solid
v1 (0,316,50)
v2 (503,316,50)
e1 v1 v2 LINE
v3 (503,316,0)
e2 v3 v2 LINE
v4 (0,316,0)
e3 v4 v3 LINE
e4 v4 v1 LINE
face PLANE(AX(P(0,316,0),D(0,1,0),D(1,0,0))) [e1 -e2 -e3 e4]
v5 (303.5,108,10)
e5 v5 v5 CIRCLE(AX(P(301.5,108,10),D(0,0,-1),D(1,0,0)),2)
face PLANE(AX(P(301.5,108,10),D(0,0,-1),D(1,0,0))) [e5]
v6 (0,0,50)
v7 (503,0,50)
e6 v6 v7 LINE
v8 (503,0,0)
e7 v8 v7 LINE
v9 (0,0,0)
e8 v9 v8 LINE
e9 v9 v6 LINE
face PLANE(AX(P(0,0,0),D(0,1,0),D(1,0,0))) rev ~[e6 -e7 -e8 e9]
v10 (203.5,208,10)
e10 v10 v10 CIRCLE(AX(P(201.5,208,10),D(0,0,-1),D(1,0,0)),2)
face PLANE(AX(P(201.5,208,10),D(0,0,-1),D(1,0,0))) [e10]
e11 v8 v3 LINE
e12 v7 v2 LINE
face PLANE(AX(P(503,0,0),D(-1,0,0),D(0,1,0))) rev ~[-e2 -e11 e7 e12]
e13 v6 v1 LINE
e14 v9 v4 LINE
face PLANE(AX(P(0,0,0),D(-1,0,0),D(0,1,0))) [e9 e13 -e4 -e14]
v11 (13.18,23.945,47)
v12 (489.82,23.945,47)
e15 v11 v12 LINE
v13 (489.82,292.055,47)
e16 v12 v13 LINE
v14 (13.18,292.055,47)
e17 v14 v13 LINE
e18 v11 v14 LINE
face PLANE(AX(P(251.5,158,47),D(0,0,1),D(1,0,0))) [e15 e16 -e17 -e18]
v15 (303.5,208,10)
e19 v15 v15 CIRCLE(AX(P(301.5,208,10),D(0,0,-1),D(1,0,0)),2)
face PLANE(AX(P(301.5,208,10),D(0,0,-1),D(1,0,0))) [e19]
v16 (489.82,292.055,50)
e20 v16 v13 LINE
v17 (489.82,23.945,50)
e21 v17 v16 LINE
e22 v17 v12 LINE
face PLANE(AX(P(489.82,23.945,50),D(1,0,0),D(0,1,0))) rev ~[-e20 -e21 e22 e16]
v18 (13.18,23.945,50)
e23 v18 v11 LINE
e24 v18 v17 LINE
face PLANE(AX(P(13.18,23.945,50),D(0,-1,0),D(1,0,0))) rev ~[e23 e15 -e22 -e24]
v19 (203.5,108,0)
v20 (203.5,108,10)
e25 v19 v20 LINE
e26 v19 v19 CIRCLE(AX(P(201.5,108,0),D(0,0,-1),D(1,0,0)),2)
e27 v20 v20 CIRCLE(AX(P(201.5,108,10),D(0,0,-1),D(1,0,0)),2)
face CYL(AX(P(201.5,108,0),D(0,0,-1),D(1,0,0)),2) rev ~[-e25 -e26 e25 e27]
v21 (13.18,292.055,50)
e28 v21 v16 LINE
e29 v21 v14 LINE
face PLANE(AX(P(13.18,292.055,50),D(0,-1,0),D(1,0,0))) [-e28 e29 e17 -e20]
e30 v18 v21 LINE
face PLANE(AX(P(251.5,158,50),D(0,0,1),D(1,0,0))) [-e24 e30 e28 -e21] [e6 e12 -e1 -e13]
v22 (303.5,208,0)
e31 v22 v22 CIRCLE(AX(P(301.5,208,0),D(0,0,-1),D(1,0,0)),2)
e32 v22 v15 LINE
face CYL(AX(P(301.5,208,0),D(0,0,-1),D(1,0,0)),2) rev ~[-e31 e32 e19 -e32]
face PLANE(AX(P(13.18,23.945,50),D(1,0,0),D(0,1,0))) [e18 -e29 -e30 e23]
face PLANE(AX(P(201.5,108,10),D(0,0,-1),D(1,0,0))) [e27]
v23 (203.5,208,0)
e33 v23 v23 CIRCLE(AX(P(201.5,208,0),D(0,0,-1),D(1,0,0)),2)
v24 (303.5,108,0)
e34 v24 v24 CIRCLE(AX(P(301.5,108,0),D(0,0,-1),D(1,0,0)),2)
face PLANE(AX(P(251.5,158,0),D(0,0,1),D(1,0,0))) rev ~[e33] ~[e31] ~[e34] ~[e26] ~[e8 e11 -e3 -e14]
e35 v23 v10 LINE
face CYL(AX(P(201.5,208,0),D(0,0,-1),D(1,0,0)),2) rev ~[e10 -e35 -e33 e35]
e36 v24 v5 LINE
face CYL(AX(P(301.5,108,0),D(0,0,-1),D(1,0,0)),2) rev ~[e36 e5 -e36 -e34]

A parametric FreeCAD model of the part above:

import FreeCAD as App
import Part
import Sketcher
from FreeCAD import Vector


def add_polygon(sketch, points):
    """Adds a closed chain of lines whose ends are joined by coincident constraints."""
    first, n = sketch.GeometryCount, len(points)
    for a, b in zip(points, points[1:] + points[:1]):
        sketch.addGeometry(Part.LineSegment(App.Vector(*a, 0), App.Vector(*b, 0)), False)
    for i in range(n):
        sketch.addConstraint(Sketcher.Constraint("Coincident", first + i, 2, first + (i + 1) % n, 1))

doc = App.newDocument("Part")
body = doc.addObject("PartDesign::Body", "Body")

# Sketch on XY plane
sketch1 = body.newObject("Sketcher::SketchObject", "Sketch")
sketch1.AttachmentSupport = (doc.getObject("XY_Plane"), [""])
sketch1.MapMode = "FlatFace"
add_polygon(sketch1, [(0, 316), (0, 0), (503, 0), (503, 316)])  # lines 0-3
sketch1.addConstraint([
    Sketcher.Constraint("Vertical", 0),
    Sketcher.Constraint("Horizontal", 1),
    Sketcher.Constraint("Vertical", 2),
    Sketcher.Constraint("Horizontal", 3),
    Sketcher.Constraint("Coincident", 0, 2, -1, 1),
    Sketcher.Constraint("DistanceX", 1, 1, 1, 2, 503.0),
    Sketcher.Constraint("DistanceY", 0, 2, 0, 1, 316.0),
])
pad1 = body.newObject("PartDesign::Pad", "Pad")
pad1.Profile = sketch1
pad1.Length = 50

# Sketch on XY plane
sketch2 = body.newObject("Sketcher::SketchObject", "Sketch001")
sketch2.AttachmentSupport = (doc.getObject("XY_Plane"), [""])
sketch2.MapMode = "FlatFace"
sketch2.addGeometry([
    Part.Circle(Vector(301.5, 208, 0), Vector(0, 0, 1), 2),
    Part.Circle(Vector(201.5, 208, 0), Vector(0, 0, 1), 2),
    Part.Circle(Vector(201.5, 108, 0), Vector(0, 0, 1), 2),
    Part.Circle(Vector(301.5, 108, 0), Vector(0, 0, 1), 2),
], False)
sketch2.addConstraint([
    Sketcher.Constraint("Equal", 0, 1),
    Sketcher.Constraint("Equal", 1, 2),
    Sketcher.Constraint("Equal", 2, 3),
    Sketcher.Constraint("Horizontal", 0, 3, 1, 3),
    Sketcher.Constraint("Horizontal", 2, 3, 3, 3),
    Sketcher.Constraint("Vertical", 1, 3, 2, 3),
    Sketcher.Constraint("Vertical", 0, 3, 3, 3),
    Sketcher.Constraint("Diameter", 0, 4.0),
    Sketcher.Constraint("DistanceY", -1, 1, 0, 3, 208.0),
    Sketcher.Constraint("DistanceY", -1, 1, 2, 3, 108.0),
    Sketcher.Constraint("DistanceX", 1, 3, 0, 3, 100.0),
    Sketcher.Constraint("DistanceX", -1, 1, 0, 3, 301.5),
])
pocket1 = body.newObject("PartDesign::Pocket", "Pocket")
pocket1.Profile = sketch2
pocket1.Length = 10
pocket1.Reversed = True

# Sketch on XY plane
sketch3 = body.newObject("Sketcher::SketchObject", "Sketch002")
sketch3.AttachmentSupport = (doc.getObject("XY_Plane"), [""])
sketch3.MapMode = "FlatFace"
sketch3.AttachmentOffset = App.Placement(Vector(0, 0, 50), App.Rotation())
add_polygon(sketch3, [(13, 292), (13, 24), (490, 24), (490, 292)])  # lines 0-3
sketch3.addConstraint([
    Sketcher.Constraint("Vertical", 0),
    Sketcher.Constraint("Horizontal", 1),
    Sketcher.Constraint("Vertical", 2),
    Sketcher.Constraint("Horizontal", 3),
    Sketcher.Constraint("DistanceX", 1, 1, 1, 2, 476.64),
    Sketcher.Constraint("DistanceY", 0, 2, 0, 1, 268.11),
    Sketcher.Constraint("DistanceX", -1, 1, 0, 2, 13.18),
    Sketcher.Constraint("DistanceY", -1, 1, 0, 2, 23.945),
])
pocket2 = body.newObject("PartDesign::Pocket", "Pocket001")
pocket2.Profile = sketch3
pocket2.Length = 3

doc.recompute()
